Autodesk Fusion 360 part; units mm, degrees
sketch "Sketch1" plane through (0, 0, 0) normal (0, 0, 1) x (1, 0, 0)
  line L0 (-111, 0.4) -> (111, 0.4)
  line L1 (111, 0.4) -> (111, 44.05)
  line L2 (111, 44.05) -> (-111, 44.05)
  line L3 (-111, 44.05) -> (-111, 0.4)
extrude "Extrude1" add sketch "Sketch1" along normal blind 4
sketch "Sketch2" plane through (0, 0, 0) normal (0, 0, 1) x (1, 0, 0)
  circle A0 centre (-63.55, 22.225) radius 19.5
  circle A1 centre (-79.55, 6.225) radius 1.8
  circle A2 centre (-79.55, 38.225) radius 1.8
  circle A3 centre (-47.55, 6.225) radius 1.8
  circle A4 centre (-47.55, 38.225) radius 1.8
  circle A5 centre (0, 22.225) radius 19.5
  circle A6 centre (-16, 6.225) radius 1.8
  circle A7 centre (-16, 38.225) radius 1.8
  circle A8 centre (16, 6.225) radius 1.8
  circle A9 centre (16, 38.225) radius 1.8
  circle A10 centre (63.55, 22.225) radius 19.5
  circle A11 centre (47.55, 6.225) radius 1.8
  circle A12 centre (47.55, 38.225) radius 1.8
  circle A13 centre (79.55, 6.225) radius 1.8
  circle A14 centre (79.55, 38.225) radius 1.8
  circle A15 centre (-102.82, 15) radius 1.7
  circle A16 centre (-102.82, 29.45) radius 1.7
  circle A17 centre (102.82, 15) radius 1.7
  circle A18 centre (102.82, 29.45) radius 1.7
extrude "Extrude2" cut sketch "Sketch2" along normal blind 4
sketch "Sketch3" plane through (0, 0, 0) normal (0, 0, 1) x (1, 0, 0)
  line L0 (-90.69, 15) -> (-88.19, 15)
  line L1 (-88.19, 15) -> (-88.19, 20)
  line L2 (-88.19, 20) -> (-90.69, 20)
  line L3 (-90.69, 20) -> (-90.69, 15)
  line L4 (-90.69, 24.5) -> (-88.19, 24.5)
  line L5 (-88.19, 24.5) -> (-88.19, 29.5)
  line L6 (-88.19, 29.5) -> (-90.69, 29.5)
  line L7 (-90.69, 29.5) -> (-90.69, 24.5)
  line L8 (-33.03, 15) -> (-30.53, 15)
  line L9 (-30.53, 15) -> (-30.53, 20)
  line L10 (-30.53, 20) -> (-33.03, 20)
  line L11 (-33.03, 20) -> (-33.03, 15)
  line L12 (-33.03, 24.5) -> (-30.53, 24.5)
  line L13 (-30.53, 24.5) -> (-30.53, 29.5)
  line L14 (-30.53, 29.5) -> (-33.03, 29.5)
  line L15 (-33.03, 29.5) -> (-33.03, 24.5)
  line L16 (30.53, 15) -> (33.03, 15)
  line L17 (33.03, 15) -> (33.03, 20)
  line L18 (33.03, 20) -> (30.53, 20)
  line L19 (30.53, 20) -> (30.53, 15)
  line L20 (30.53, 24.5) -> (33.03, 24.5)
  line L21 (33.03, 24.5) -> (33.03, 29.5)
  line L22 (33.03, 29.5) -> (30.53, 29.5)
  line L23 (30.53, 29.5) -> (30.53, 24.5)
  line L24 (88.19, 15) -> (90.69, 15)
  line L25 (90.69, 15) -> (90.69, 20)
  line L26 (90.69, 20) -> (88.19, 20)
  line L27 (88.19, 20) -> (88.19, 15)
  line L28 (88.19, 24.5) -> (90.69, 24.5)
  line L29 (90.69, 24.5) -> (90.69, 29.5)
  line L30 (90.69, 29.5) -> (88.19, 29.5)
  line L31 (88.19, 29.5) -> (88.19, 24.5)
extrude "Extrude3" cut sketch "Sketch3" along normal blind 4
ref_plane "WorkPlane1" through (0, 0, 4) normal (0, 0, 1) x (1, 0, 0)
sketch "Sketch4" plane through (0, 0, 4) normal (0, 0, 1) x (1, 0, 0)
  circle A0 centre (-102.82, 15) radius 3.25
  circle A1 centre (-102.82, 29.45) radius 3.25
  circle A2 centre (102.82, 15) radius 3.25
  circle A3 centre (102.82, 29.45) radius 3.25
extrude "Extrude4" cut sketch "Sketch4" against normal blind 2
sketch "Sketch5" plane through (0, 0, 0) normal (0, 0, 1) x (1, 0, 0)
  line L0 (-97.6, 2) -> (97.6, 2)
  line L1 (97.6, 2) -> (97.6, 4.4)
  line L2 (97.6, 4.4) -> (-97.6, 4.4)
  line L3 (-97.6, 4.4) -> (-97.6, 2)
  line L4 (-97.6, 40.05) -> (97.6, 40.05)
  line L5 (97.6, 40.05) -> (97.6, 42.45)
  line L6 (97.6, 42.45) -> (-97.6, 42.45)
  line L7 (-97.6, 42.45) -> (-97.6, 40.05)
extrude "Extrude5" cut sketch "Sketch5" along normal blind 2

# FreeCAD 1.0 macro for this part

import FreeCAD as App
import Part
import Sketcher
from FreeCAD import Vector

doc = App.newDocument("Part")
body = doc.addObject("PartDesign::Body", "Body")

sketch1 = doc.addObject("Sketcher::SketchObject", "Sketch")
body.addObject(sketch1)
sketch1.AttachmentSupport = (doc.XY_Plane, [""])
sketch1.MapMode = "FlatFace"
sketch1.addGeometry([
    Part.LineSegment(Vector(-111, 44, 0), Vector(-111, 0, 0)),
    Part.LineSegment(Vector(-111, 0, 0), Vector(111, 0, 0)),
    Part.LineSegment(Vector(111, 0, 0), Vector(111, 44, 0)),
    Part.LineSegment(Vector(111, 44, 0), Vector(-111, 44, 0)),
], False)
sketch1.addConstraint([
    Sketcher.Constraint("Coincident", 0, 2, 1, 1),
    Sketcher.Constraint("Coincident", 1, 2, 2, 1),
    Sketcher.Constraint("Coincident", 2, 2, 3, 1),
    Sketcher.Constraint("Coincident", 3, 2, 0, 1),
    Sketcher.Constraint("Vertical", 0),
    Sketcher.Constraint("Horizontal", 1),
    Sketcher.Constraint("Vertical", 2),
    Sketcher.Constraint("Horizontal", 3),
    Sketcher.Constraint("DistanceX", 1, 1, 1, 2, 222.0),
    Sketcher.Constraint("DistanceX", 0, 2, -1, 1, 111.0),
    Sketcher.Constraint("DistanceY", 0, 2, 0, 1, 43.65),
    Sketcher.Constraint("DistanceY", -1, 1, 0, 2, 0.4),
])
pad1 = doc.addObject("PartDesign::Pad", "Pad")
body.addObject(pad1)
pad1.Profile = sketch1
pad1.Length = 4

sketch2 = doc.addObject("Sketcher::SketchObject", "Sketch001")
body.addObject(sketch2)
sketch2.AttachmentSupport = (doc.XY_Plane, [""])
sketch2.MapMode = "FlatFace"
sketch2.addGeometry([
    Part.Circle(Vector(-63.5, 22.2, 0), Vector(0, 0, 1), 19.5),
    Part.Circle(Vector(-79.5, 6.2, 0), Vector(0, 0, 1), 1.8),
    Part.Circle(Vector(-79.5, 38.2, 0), Vector(0, 0, 1), 1.8),
    Part.Circle(Vector(-47.5, 6.2, 0), Vector(0, 0, 1), 1.8),
    Part.Circle(Vector(-47.5, 38.2, 0), Vector(0, 0, 1), 1.8),
    Part.Circle(Vector(0, 22.2, 0), Vector(0, 0, 1), 19.5),
    Part.Circle(Vector(-16, 6.2, 0), Vector(0, 0, 1), 1.8),
    Part.Circle(Vector(-16, 38.2, 0), Vector(0, 0, 1), 1.8),
    Part.Circle(Vector(16, 6.2, 0), Vector(0, 0, 1), 1.8),
    Part.Circle(Vector(16, 38.2, 0), Vector(0, 0, 1), 1.8),
    Part.Circle(Vector(63.5, 22.2, 0), Vector(0, 0, 1), 19.5),
    Part.Circle(Vector(47.5, 6.2, 0), Vector(0, 0, 1), 1.8),
    Part.Circle(Vector(47.5, 38.2, 0), Vector(0, 0, 1), 1.8),
    Part.Circle(Vector(79.5, 6.2, 0), Vector(0, 0, 1), 1.8),
    Part.Circle(Vector(79.5, 38.2, 0), Vector(0, 0, 1), 1.8),
    Part.Circle(Vector(-102.8, 15, 0), Vector(0, 0, 1), 1.7),
    Part.Circle(Vector(-102.8, 29.4, 0), Vector(0, 0, 1), 1.7),
    Part.Circle(Vector(102.8, 15, 0), Vector(0, 0, 1), 1.7),
    Part.Circle(Vector(102.8, 29.4, 0), Vector(0, 0, 1), 1.7),
], False)
sketch2.addConstraint([
    Sketcher.Constraint("Equal", 1, 2),
    Sketcher.Constraint("Equal", 2, 3),
    Sketcher.Constraint("Equal", 3, 4),
    Sketcher.Constraint("Equal", 0, 5),
    Sketcher.Constraint("Equal", 4, 6),
    Sketcher.Constraint("Equal", 6, 7),
    Sketcher.Constraint("Equal", 7, 8),
    Sketcher.Constraint("Equal", 8, 9),
    Sketcher.Constraint("Equal", 5, 10),
    Sketcher.Constraint("Equal", 9, 11),
    Sketcher.Constraint("Equal", 11, 12),
    Sketcher.Constraint("Equal", 12, 13),
    Sketcher.Constraint("Equal", 13, 14),
    Sketcher.Constraint("Equal", 15, 16),
    Sketcher.Constraint("Equal", 16, 17),
    Sketcher.Constraint("Equal", 17, 18),
    Sketcher.Constraint("Symmetric", 6, 3, 8, 3, -2),
    Sketcher.Constraint("Symmetric", 7, 3, 9, 3, -2),
    Sketcher.Constraint("Symmetric", 0, 3, 10, 3, -2),
    Sketcher.Constraint("Symmetric", 3, 3, 11, 3, -2),
    Sketcher.Constraint("Symmetric", 4, 3, 12, 3, -2),
    Sketcher.Constraint("Symmetric", 1, 3, 13, 3, -2),
    Sketcher.Constraint("Symmetric", 2, 3, 14, 3, -2),
    Sketcher.Constraint("Symmetric", 15, 3, 17, 3, -2),
    Sketcher.Constraint("Symmetric", 16, 3, 18, 3, -2),
    Sketcher.Constraint("PointOnObject", 5, 3, -2),
    Sketcher.Constraint("Horizontal", 1, 3, 3, 3),
    Sketcher.Constraint("Horizontal", 2, 3, 4, 3),
    Sketcher.Constraint("Horizontal", 0, 3, 5, 3),
    Sketcher.Constraint("Horizontal", 3, 3, 6, 3),
    Sketcher.Constraint("Horizontal", 4, 3, 7, 3),
    Sketcher.Constraint("Vertical", 1, 3, 2, 3),
    Sketcher.Constraint("Vertical", 3, 3, 4, 3),
    Sketcher.Constraint("Vertical", 6, 3, 7, 3),
    Sketcher.Constraint("Vertical", 15, 3, 16, 3),
    Sketcher.Constraint("Diameter", 0, 39.0),
    Sketcher.Constraint("Diameter", 1, 3.6),
    Sketcher.Constraint("Diameter", 15, 3.4),
    Sketcher.Constraint("DistanceX", 6, 3, -1, 1, 16.0),
    Sketcher.Constraint("DistanceY", -1, 1, 15, 3, 15.0),
    Sketcher.Constraint("DistanceX", 1, 3, 0, 3, 16.0),
    Sketcher.Constraint("DistanceY", 1, 3, 0, 3, 16.0),
    Sketcher.Constraint("DistanceY", 0, 3, 2, 3, 16.0),
    Sketcher.Constraint("DistanceX", 0, 3, 3, 3, 16.0),
    Sketcher.Constraint("DistanceX", 0, 3, -1, 1, 63.55),
    Sketcher.Constraint("DistanceX", 15, 3, -1, 1, 102.82),
    Sketcher.Constraint("DistanceY", -1, 1, 16, 3, 29.45),
    Sketcher.Constraint("DistanceY", -1, 1, 0, 3, 22.225),
])
pocket1 = doc.addObject("PartDesign::Pocket", "Pocket")
body.addObject(pocket1)
pocket1.Profile = sketch2
pocket1.Length = 4
pocket1.Reversed = True

sketch3 = doc.addObject("Sketcher::SketchObject", "Sketch002")
body.addObject(sketch3)
sketch3.AttachmentSupport = (doc.XY_Plane, [""])
sketch3.MapMode = "FlatFace"
sketch3.addGeometry([
    Part.LineSegment(Vector(-90.7, 20, 0), Vector(-90.7, 15, 0)),
    Part.LineSegment(Vector(-90.7, 15, 0), Vector(-88.2, 15, 0)),
    Part.LineSegment(Vector(-88.2, 15, 0), Vector(-88.2, 20, 0)),
    Part.LineSegment(Vector(-88.2, 20, 0), Vector(-90.7, 20, 0)),
    Part.LineSegment(Vector(-90.7, 29.5, 0), Vector(-90.7, 24.5, 0)),
    Part.LineSegment(Vector(-90.7, 24.5, 0), Vector(-88.2, 24.5, 0)),
    Part.LineSegment(Vector(-88.2, 24.5, 0), Vector(-88.2, 29.5, 0)),
    Part.LineSegment(Vector(-88.2, 29.5, 0), Vector(-90.7, 29.5, 0)),
    Part.LineSegment(Vector(-33, 20, 0), Vector(-33, 15, 0)),
    Part.LineSegment(Vector(-33, 15, 0), Vector(-30.5, 15, 0)),
    Part.LineSegment(Vector(-30.5, 15, 0), Vector(-30.5, 20, 0)),
    Part.LineSegment(Vector(-30.5, 20, 0), Vector(-33, 20, 0)),
    Part.LineSegment(Vector(-33, 29.5, 0), Vector(-33, 24.5, 0)),
    Part.LineSegment(Vector(-33, 24.5, 0), Vector(-30.5, 24.5, 0)),
    Part.LineSegment(Vector(-30.5, 24.5, 0), Vector(-30.5, 29.5, 0)),
    Part.LineSegment(Vector(-30.5, 29.5, 0), Vector(-33, 29.5, 0)),
    Part.LineSegment(Vector(30.5, 20, 0), Vector(30.5, 15, 0)),
    Part.LineSegment(Vector(30.5, 15, 0), Vector(33, 15, 0)),
    Part.LineSegment(Vector(33, 15, 0), Vector(33, 20, 0)),
    Part.LineSegment(Vector(33, 20, 0), Vector(30.5, 20, 0)),
    Part.LineSegment(Vector(30.5, 29.5, 0), Vector(30.5, 24.5, 0)),
    Part.LineSegment(Vector(30.5, 24.5, 0), Vector(33, 24.5, 0)),
    Part.LineSegment(Vector(33, 24.5, 0), Vector(33, 29.5, 0)),
    Part.LineSegment(Vector(33, 29.5, 0), Vector(30.5, 29.5, 0)),
    Part.LineSegment(Vector(88.2, 20, 0), Vector(88.2, 15, 0)),
    Part.LineSegment(Vector(88.2, 15, 0), Vector(90.7, 15, 0)),
    Part.LineSegment(Vector(90.7, 15, 0), Vector(90.7, 20, 0)),
    Part.LineSegment(Vector(90.7, 20, 0), Vector(88.2, 20, 0)),
    Part.LineSegment(Vector(88.2, 29.5, 0), Vector(88.2, 24.5, 0)),
    Part.LineSegment(Vector(88.2, 24.5, 0), Vector(90.7, 24.5, 0)),
    Part.LineSegment(Vector(90.7, 24.5, 0), Vector(90.7, 29.5, 0)),
    Part.LineSegment(Vector(90.7, 29.5, 0), Vector(88.2, 29.5, 0)),
], False)
sketch3.addConstraint([
    Sketcher.Constraint("Coincident", 0, 2, 1, 1),
    Sketcher.Constraint("Coincident", 1, 2, 2, 1),
    Sketcher.Constraint("Coincident", 2, 2, 3, 1),
    Sketcher.Constraint("Coincident", 3, 2, 0, 1),
    Sketcher.Constraint("Coincident", 4, 2, 5, 1),
    Sketcher.Constraint("Coincident", 5, 2, 6, 1),
    Sketcher.Constraint("Coincident", 6, 2, 7, 1),
    Sketcher.Constraint("Coincident", 7, 2, 4, 1),
    Sketcher.Constraint("Coincident", 8, 2, 9, 1),
    Sketcher.Constraint("Coincident", 9, 2, 10, 1),
    Sketcher.Constraint("Coincident", 10, 2, 11, 1),
    Sketcher.Constraint("Coincident", 11, 2, 8, 1),
    Sketcher.Constraint("Coincident", 12, 2, 13, 1),
    Sketcher.Constraint("Coincident", 13, 2, 14, 1),
    Sketcher.Constraint("Coincident", 14, 2, 15, 1),
    Sketcher.Constraint("Coincident", 15, 2, 12, 1),
    Sketcher.Constraint("Coincident", 16, 2, 17, 1),
    Sketcher.Constraint("Coincident", 17, 2, 18, 1),
    Sketcher.Constraint("Coincident", 18, 2, 19, 1),
    Sketcher.Constraint("Coincident", 19, 2, 16, 1),
    Sketcher.Constraint("Coincident", 20, 2, 21, 1),
    Sketcher.Constraint("Coincident", 21, 2, 22, 1),
    Sketcher.Constraint("Coincident", 22, 2, 23, 1),
    Sketcher.Constraint("Coincident", 23, 2, 20, 1),
    Sketcher.Constraint("Coincident", 24, 2, 25, 1),
    Sketcher.Constraint("Coincident", 25, 2, 26, 1),
    Sketcher.Constraint("Coincident", 26, 2, 27, 1),
    Sketcher.Constraint("Coincident", 27, 2, 24, 1),
    Sketcher.Constraint("Coincident", 28, 2, 29, 1),
    Sketcher.Constraint("Coincident", 29, 2, 30, 1),
    Sketcher.Constraint("Coincident", 30, 2, 31, 1),
    Sketcher.Constraint("Coincident", 31, 2, 28, 1),
    Sketcher.Constraint("Vertical", 0),
    Sketcher.Constraint("Horizontal", 1),
    Sketcher.Constraint("Vertical", 2),
    Sketcher.Constraint("Horizontal", 3),
    Sketcher.Constraint("Vertical", 4),
    Sketcher.Constraint("Horizontal", 5),
    Sketcher.Constraint("Vertical", 6),
    Sketcher.Constraint("Horizontal", 7),
    Sketcher.Constraint("Vertical", 8),
    Sketcher.Constraint("Horizontal", 9),
    Sketcher.Constraint("Vertical", 10),
    Sketcher.Constraint("Horizontal", 11),
    Sketcher.Constraint("Vertical", 12),
    Sketcher.Constraint("Horizontal", 13),
    Sketcher.Constraint("Vertical", 14),
    Sketcher.Constraint("Horizontal", 15),
    Sketcher.Constraint("Vertical", 16),
    Sketcher.Constraint("Horizontal", 17),
    Sketcher.Constraint("Vertical", 18),
    Sketcher.Constraint("Horizontal", 19),
    Sketcher.Constraint("Vertical", 20),
    Sketcher.Constraint("Horizontal", 21),
    Sketcher.Constraint("Vertical", 22),
    Sketcher.Constraint("Horizontal", 23),
    Sketcher.Constraint("Vertical", 24),
    Sketcher.Constraint("Horizontal", 25),
    Sketcher.Constraint("Vertical", 26),
    Sketcher.Constraint("Horizontal", 27),
    Sketcher.Constraint("Vertical", 28),
    Sketcher.Constraint("Horizontal", 29),
    Sketcher.Constraint("Vertical", 30),
    Sketcher.Constraint("Horizontal", 31),
    Sketcher.Constraint("Symmetric", 9, 2, 16, 2, -2),
    Sketcher.Constraint("Symmetric", 11, 2, 18, 2, -2),
    Sketcher.Constraint("Symmetric", 13, 2, 20, 2, -2),
    Sketcher.Constraint("Symmetric", 15, 2, 22, 2, -2),
    Sketcher.Constraint("Symmetric", 1, 2, 24, 2, -2),
    Sketcher.Constraint("Symmetric", 3, 2, 26, 2, -2),
    Sketcher.Constraint("Symmetric", 5, 2, 28, 2, -2),
    Sketcher.Constraint("Symmetric", 7, 2, 30, 2, -2),
    Sketcher.Constraint("Horizontal", 1, 2, 8, 2),
    Sketcher.Constraint("Horizontal", 3, 2, 10, 2),
    Sketcher.Constraint("Horizontal", 5, 2, 12, 2),
    Sketcher.Constraint("Horizontal", 7, 2, 14, 2),
    Sketcher.Constraint("Vertical", 3, 2, 4, 2),
    Sketcher.Constraint("Vertical", 2, 2, 5, 2),
    Sketcher.Constraint("Vertical", 11, 2, 12, 2),
    Sketcher.Constraint("Vertical", 10, 2, 13, 2),
    Sketcher.Constraint("Equal", 7, 9),
    Sketcher.Constraint("Equal", 2, 4),
    Sketcher.Constraint("DistanceY", 0, 2, 0, 1, 5.0),
    Sketcher.Constraint("DistanceX", 1, 1, 1, 2, 2.5),
    Sketcher.Constraint("DistanceY", -1, 1, 0, 2, 15.0),
    Sketcher.Constraint("DistanceY", -1, 1, 4, 2, 24.5),
    Sketcher.Constraint("DistanceX", 0, 2, -1, 1, 90.69),
    Sketcher.Constraint("DistanceX", 8, 2, -1, 1, 33.03),
])
pocket2 = doc.addObject("PartDesign::Pocket", "Pocket001")
body.addObject(pocket2)
pocket2.Profile = sketch3
pocket2.Length = 4
pocket2.Reversed = True

sketch4 = doc.addObject("Sketcher::SketchObject", "Sketch003")
body.addObject(sketch4)
sketch4.AttachmentSupport = (doc.XY_Plane, [""])
sketch4.MapMode = "FlatFace"
sketch4.AttachmentOffset = App.Placement(Vector(0, 0, 4), App.Rotation())
sketch4.addGeometry([
    Part.Circle(Vector(-102.8, 15, 0), Vector(0, 0, 1), 3.2),
    Part.Circle(Vector(-102.8, 29.4, 0), Vector(0, 0, 1), 3.2),
    Part.Circle(Vector(102.8, 15, 0), Vector(0, 0, 1), 3.2),
    Part.Circle(Vector(102.8, 29.4, 0), Vector(0, 0, 1), 3.2),
], False)
sketch4.addConstraint([
    Sketcher.Constraint("Equal", 0, 1),
    Sketcher.Constraint("Equal", 1, 2),
    Sketcher.Constraint("Equal", 2, 3),
    Sketcher.Constraint("Symmetric", 0, 3, 2, 3, -2),
    Sketcher.Constraint("Symmetric", 1, 3, 3, 3, -2),
    Sketcher.Constraint("Vertical", 0, 3, 1, 3),
    Sketcher.Constraint("Diameter", 0, 6.5),
    Sketcher.Constraint("DistanceY", -1, 1, 0, 3, 15.0),
    Sketcher.Constraint("DistanceX", 0, 3, -1, 1, 102.82),
    Sketcher.Constraint("DistanceY", -1, 1, 1, 3, 29.45),
])
pocket3 = doc.addObject("PartDesign::Pocket", "Pocket002")
body.addObject(pocket3)
pocket3.Profile = sketch4
pocket3.Length = 2

sketch5 = doc.addObject("Sketcher::SketchObject", "Sketch004")
body.addObject(sketch5)
sketch5.AttachmentSupport = (doc.XY_Plane, [""])
sketch5.MapMode = "FlatFace"
sketch5.addGeometry([
    Part.LineSegment(Vector(-97.6, 4.4, 0), Vector(-97.6, 2, 0)),
    Part.LineSegment(Vector(-97.6, 2, 0), Vector(97.6, 2, 0)),
    Part.LineSegment(Vector(97.6, 2, 0), Vector(97.6, 4.4, 0)),
    Part.LineSegment(Vector(97.6, 4.4, 0), Vector(-97.6, 4.4, 0)),
    Part.LineSegment(Vector(-97.6, 42.5, 0), Vector(-97.6, 40, 0)),
    Part.LineSegment(Vector(-97.6, 40, 0), Vector(97.6, 40, 0)),
    Part.LineSegment(Vector(97.6, 40, 0), Vector(97.6, 42.5, 0)),
    Part.LineSegment(Vector(97.6, 42.5, 0), Vector(-97.6, 42.5, 0)),
], False)
sketch5.addConstraint([
    Sketcher.Constraint("Coincident", 0, 2, 1, 1),
    Sketcher.Constraint("Coincident", 1, 2, 2, 1),
    Sketcher.Constraint("Coincident", 2, 2, 3, 1),
    Sketcher.Constraint("Coincident", 3, 2, 0, 1),
    Sketcher.Constraint("Coincident", 4, 2, 5, 1),
    Sketcher.Constraint("Coincident", 5, 2, 6, 1),
    Sketcher.Constraint("Coincident", 6, 2, 7, 1),
    Sketcher.Constraint("Coincident", 7, 2, 4, 1),
    Sketcher.Constraint("Vertical", 0),
    Sketcher.Constraint("Horizontal", 1),
    Sketcher.Constraint("Vertical", 2),
    Sketcher.Constraint("Horizontal", 3),
    Sketcher.Constraint("Vertical", 4),
    Sketcher.Constraint("Horizontal", 5),
    Sketcher.Constraint("Vertical", 6),
    Sketcher.Constraint("Horizontal", 7),
    Sketcher.Constraint("Vertical", 3, 2, 4, 2),
    Sketcher.Constraint("Vertical", 2, 2, 5, 2),
    Sketcher.Constraint("Equal", 2, 4),
    Sketcher.Constraint("DistanceX", 1, 1, 1, 2, 195.2),
    Sketcher.Constraint("DistanceY", 0, 2, 0, 1, 2.4),
    Sketcher.Constraint("DistanceY", -1, 1, 0, 2, 2.0),
    Sketcher.Constraint("DistanceX", 0, 2, -1, 1, 97.6),
    Sketcher.Constraint("DistanceY", -1, 1, 4, 2, 40.05),
])
pocket4 = doc.addObject("PartDesign::Pocket", "Pocket003")
body.addObject(pocket4)
pocket4.Profile = sketch5
pocket4.Length = 2
pocket4.Reversed = True

doc.recompute()
